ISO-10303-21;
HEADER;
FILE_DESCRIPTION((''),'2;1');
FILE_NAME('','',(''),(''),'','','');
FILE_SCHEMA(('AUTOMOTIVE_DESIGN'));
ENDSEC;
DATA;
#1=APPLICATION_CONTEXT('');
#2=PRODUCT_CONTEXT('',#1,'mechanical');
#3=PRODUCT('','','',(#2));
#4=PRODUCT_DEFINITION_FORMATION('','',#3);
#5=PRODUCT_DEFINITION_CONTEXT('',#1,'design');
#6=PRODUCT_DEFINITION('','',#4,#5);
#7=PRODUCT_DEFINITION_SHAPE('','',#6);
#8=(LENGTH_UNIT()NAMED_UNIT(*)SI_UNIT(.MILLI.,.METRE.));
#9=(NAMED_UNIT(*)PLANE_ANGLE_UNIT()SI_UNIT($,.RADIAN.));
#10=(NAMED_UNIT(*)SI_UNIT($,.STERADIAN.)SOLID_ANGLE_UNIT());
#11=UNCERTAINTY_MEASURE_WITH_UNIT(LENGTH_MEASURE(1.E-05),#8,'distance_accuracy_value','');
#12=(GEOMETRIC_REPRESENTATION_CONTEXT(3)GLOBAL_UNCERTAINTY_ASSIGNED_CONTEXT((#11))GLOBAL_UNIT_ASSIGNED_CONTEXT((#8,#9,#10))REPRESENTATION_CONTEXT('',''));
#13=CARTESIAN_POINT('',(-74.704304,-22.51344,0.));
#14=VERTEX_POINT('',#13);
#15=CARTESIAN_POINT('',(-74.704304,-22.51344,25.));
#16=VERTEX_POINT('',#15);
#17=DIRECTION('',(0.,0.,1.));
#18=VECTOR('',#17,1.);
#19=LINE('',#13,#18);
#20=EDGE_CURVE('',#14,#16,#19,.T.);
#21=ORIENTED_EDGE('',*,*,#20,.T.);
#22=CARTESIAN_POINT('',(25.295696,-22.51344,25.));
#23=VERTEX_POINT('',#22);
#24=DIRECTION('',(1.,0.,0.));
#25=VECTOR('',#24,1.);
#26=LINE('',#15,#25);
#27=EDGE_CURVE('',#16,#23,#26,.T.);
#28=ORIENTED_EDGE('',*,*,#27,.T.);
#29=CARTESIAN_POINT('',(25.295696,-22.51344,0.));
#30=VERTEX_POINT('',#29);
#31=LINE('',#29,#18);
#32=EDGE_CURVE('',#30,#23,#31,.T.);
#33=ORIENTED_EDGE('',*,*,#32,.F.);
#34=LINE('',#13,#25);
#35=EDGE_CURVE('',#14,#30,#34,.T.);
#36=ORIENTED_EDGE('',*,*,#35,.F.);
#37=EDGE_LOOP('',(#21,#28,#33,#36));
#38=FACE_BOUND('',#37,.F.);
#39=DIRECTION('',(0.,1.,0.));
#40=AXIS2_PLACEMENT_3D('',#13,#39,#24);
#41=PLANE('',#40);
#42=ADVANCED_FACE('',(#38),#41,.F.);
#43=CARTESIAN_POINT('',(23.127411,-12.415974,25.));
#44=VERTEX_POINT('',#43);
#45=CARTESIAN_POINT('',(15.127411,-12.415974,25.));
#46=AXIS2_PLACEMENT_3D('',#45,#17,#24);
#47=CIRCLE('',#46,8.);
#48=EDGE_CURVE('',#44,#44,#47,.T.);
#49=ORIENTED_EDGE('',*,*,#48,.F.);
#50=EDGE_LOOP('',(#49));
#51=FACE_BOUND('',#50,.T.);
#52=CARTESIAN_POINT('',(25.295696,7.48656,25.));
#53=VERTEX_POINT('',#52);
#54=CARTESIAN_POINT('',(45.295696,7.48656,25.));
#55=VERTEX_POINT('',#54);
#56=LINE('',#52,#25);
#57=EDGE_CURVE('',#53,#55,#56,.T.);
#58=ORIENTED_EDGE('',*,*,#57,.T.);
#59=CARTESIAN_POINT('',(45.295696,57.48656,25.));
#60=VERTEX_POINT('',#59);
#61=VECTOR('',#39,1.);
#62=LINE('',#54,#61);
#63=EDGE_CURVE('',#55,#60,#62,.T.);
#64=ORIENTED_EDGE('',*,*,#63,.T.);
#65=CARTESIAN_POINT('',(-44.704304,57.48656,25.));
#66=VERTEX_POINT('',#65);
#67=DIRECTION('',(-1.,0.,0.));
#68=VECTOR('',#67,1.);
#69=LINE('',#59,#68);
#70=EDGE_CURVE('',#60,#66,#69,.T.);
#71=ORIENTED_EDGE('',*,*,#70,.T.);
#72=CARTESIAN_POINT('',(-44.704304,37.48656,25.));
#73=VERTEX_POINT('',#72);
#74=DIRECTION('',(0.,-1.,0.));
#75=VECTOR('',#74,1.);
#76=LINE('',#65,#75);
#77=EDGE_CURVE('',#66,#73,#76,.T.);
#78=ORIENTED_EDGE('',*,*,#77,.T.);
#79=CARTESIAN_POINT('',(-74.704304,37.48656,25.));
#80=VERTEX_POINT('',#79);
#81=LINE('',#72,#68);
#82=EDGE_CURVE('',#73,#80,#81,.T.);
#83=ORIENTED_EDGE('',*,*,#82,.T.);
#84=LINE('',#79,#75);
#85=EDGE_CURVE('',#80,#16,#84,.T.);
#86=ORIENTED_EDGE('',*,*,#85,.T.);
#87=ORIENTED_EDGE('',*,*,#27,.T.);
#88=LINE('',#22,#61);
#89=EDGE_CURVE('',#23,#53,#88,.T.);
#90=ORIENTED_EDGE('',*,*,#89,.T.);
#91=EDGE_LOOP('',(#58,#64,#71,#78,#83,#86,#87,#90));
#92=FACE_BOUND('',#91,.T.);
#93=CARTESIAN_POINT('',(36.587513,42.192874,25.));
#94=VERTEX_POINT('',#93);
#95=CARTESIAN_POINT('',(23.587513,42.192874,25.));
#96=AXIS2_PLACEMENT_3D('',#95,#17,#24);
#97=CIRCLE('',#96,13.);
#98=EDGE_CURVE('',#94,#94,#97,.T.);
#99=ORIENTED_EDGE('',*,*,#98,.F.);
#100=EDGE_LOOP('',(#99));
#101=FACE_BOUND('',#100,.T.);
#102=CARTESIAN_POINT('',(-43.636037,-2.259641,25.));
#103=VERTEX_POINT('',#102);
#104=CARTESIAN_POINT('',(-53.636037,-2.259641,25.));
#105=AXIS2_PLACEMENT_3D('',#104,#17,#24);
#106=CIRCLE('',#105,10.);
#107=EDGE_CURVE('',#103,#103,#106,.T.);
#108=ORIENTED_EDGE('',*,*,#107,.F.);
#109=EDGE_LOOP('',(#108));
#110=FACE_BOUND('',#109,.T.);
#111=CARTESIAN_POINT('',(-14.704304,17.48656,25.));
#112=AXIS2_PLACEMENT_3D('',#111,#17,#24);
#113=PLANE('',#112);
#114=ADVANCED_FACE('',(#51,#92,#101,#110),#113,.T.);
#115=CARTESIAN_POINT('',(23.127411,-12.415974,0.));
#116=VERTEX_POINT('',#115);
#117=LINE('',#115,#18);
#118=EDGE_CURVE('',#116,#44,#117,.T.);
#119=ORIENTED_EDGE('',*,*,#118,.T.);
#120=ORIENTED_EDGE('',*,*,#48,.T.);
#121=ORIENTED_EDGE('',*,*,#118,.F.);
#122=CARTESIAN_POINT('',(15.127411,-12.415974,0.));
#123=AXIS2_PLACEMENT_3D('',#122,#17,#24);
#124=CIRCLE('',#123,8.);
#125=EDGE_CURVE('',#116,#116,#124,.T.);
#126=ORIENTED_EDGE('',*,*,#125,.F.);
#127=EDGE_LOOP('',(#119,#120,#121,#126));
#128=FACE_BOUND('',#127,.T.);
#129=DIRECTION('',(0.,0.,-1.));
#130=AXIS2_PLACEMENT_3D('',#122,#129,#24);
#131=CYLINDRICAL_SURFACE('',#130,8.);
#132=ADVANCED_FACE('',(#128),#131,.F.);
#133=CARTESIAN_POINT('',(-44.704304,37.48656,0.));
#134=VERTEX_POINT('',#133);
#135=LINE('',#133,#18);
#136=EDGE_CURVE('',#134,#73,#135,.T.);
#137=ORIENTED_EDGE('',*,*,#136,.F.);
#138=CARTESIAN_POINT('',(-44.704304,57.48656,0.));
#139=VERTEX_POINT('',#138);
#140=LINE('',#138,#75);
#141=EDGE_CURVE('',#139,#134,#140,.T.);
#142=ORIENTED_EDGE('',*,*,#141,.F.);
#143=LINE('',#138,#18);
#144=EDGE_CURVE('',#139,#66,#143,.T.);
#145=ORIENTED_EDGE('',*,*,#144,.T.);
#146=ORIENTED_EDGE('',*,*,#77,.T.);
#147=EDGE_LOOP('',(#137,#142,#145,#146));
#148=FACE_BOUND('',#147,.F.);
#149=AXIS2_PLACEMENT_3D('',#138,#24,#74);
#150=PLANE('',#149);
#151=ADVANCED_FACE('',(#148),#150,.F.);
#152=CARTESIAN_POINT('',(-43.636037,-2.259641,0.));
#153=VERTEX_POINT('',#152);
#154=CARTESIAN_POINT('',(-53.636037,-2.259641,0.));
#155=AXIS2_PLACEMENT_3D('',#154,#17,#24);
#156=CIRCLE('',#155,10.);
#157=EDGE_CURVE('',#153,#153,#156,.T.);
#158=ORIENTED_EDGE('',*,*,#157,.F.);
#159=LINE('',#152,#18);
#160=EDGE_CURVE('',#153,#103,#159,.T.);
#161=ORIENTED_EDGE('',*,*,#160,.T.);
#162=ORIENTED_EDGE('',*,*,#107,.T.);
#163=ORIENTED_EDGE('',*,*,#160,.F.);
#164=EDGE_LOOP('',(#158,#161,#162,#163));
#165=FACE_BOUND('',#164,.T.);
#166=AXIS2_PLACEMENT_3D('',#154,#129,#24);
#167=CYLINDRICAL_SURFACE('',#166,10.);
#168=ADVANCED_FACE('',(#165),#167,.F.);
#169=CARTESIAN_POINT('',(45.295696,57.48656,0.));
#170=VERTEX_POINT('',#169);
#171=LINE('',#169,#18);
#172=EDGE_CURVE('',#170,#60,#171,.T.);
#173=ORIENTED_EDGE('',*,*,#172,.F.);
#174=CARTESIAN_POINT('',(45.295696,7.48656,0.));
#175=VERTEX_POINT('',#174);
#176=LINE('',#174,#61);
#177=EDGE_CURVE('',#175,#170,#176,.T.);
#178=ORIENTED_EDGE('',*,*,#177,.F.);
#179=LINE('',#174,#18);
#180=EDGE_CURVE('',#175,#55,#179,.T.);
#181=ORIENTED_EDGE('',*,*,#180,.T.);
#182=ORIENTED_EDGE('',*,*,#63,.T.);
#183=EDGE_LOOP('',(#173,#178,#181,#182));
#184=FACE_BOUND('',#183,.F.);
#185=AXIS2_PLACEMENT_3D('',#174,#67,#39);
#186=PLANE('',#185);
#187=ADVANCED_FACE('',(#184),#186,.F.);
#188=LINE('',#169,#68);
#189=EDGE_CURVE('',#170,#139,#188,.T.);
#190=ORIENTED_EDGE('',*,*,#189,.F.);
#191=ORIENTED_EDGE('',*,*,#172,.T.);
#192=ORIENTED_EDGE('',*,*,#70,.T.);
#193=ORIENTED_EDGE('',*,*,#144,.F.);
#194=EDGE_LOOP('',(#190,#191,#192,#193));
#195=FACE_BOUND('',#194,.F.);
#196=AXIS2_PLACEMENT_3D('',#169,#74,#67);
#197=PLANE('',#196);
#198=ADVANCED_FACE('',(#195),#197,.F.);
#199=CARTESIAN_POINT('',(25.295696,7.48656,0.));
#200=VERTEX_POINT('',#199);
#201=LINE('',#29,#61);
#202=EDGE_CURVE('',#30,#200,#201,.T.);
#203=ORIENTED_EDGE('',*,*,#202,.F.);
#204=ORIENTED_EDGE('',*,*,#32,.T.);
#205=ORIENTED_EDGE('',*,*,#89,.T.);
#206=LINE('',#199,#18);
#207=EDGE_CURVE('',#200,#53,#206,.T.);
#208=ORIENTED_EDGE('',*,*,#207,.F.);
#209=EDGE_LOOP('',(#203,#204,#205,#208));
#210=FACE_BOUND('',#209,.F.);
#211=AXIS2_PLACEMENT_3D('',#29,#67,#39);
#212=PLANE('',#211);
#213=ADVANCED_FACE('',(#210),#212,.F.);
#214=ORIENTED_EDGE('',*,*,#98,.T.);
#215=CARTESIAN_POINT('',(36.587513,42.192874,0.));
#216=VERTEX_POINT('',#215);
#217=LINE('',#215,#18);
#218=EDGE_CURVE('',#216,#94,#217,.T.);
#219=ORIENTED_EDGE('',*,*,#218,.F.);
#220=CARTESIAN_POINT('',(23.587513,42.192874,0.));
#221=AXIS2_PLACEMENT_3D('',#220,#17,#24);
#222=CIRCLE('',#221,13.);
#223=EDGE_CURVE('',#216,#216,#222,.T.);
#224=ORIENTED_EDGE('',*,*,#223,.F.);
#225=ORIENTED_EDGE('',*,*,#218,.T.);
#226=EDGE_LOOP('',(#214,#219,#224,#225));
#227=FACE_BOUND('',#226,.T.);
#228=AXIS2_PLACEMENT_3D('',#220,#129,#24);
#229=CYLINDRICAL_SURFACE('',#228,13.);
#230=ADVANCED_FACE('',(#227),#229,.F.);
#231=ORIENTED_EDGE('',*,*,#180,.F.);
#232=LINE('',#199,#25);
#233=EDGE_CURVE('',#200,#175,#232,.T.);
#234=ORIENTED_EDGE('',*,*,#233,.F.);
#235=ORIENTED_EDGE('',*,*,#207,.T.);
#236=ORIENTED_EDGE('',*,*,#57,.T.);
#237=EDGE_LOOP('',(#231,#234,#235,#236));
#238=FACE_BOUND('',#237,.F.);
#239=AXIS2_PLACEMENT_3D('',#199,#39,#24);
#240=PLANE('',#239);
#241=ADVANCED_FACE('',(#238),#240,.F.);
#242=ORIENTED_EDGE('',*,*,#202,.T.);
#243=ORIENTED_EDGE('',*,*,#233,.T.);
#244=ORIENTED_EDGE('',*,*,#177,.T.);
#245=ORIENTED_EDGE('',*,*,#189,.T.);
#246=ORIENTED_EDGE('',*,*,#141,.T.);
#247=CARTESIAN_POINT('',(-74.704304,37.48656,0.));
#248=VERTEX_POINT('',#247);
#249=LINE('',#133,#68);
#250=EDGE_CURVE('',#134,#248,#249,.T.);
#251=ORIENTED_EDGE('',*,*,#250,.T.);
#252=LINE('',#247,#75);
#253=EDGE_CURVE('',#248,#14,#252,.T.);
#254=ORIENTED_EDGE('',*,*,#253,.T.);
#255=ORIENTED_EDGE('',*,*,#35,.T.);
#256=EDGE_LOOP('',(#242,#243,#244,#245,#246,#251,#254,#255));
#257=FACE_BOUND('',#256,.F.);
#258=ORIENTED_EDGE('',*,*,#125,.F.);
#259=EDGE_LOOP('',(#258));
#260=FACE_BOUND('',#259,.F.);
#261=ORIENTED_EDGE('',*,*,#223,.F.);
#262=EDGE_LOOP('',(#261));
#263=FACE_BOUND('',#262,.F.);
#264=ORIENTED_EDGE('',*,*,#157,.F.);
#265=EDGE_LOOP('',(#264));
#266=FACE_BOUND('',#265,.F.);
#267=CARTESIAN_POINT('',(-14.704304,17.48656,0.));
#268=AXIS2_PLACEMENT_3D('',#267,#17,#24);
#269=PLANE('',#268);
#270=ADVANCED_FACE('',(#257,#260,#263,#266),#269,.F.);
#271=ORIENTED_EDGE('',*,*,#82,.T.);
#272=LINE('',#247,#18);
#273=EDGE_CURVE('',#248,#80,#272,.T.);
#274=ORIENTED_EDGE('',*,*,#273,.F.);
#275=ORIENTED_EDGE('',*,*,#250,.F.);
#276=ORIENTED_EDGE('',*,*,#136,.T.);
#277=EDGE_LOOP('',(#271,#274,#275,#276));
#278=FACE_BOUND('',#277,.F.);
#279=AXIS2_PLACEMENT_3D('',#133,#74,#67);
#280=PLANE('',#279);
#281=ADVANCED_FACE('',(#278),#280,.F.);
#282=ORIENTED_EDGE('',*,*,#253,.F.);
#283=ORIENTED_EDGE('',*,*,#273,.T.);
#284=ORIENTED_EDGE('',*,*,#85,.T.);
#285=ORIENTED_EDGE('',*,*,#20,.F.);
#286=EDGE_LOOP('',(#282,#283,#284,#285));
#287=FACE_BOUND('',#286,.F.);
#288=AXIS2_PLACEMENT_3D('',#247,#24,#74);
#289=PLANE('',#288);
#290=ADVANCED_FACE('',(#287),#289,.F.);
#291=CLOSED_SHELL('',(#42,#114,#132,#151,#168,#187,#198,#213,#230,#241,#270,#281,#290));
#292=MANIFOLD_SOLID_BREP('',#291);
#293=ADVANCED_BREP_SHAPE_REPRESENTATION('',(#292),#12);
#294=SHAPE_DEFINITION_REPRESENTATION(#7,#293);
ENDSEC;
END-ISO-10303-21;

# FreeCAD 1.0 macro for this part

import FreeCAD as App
import Part
import Sketcher

V = App.Vector
Q = App.Units.Quantity

doc = App.newDocument("Part")
body = doc.addObject("PartDesign::Body", "Body")

sketch1 = body.newObject("Sketcher::SketchObject", "Sketch")
sketch1.AttachmentSupport = (doc.getObject("XY_Plane"), [""])
sketch1.MapMode = "FlatFace"
sketch1.addGeometry([
    Part.LineSegment(V(45, 57, 0), V(-45, 57, 0)),
    Part.LineSegment(V(-45, 57, 0), V(-45, 37, 0)),
    Part.LineSegment(V(-45, 37, 0), V(-75, 37, 0)),
    Part.LineSegment(V(-75, 37, 0), V(-75, -23, 0)),
    Part.LineSegment(V(-75, -23, 0), V(25, -23, 0)),
    Part.LineSegment(V(25, -23, 0), V(25, 7, 0)),
    Part.LineSegment(V(25, 7, 0), V(45, 7, 0)),
    Part.LineSegment(V(45, 7, 0), V(45, 57, 0)),
    Part.Circle(V(-54, -2, 0), V(0, 0, 1), 10),
    Part.Circle(V(15, -12, 0), V(0, 0, 1), 8),
    Part.Circle(V(24, 42, 0), V(0, 0, 1), 13),
], False)
sketch1.addConstraint([
    Sketcher.Constraint("Coincident", 0, 2, 1, 1),
    Sketcher.Constraint("Coincident", 1, 2, 2, 1),
    Sketcher.Constraint("Coincident", 2, 2, 3, 1),
    Sketcher.Constraint("Coincident", 3, 2, 4, 1),
    Sketcher.Constraint("Coincident", 4, 2, 5, 1),
    Sketcher.Constraint("Coincident", 5, 2, 6, 1),
    Sketcher.Constraint("Coincident", 6, 2, 7, 1),
    Sketcher.Constraint("Coincident", 7, 2, 0, 1),
    Sketcher.Constraint("Horizontal", 0),
    Sketcher.Constraint("Vertical", 1),
    Sketcher.Constraint("Horizontal", 2),
    Sketcher.Constraint("Vertical", 3),
    Sketcher.Constraint("Horizontal", 4),
    Sketcher.Constraint("Vertical", 5),
    Sketcher.Constraint("Horizontal", 6),
    Sketcher.Constraint("Vertical", 7),
    Sketcher.Constraint("Equal", 6, 1),
    Sketcher.Constraint("Equal", 2, 5),
    Sketcher.Constraint("Diameter", 8, Q("20 mm")),
    Sketcher.Constraint("Diameter", 9, Q("16 mm")),
    Sketcher.Constraint("Diameter", 10, Q("26 mm")),
    Sketcher.Constraint("DistanceX", 0, 2, 0, 1, Q("90 mm")),
    Sketcher.Constraint("DistanceX", 2, 2, 2, 1, Q("30 mm")),
    Sketcher.Constraint("DistanceX", 4, 1, 4, 2, Q("100 mm")),
    Sketcher.Constraint("DistanceY", 3, 2, 3, 1, Q("60 mm")),
    Sketcher.Constraint("DistanceY", 8, 3, 0, 2, Q("59.746201 mm")),
    Sketcher.Constraint("DistanceY", 8, 3, -1, 1, Q("2.259641 mm")),
    Sketcher.Constraint("DistanceX", -1, 1, 9, 3, Q("15.127411 mm")),
    Sketcher.Constraint("DistanceY", 9, 3, 10, 3, Q("54.608848 mm")),
    Sketcher.Constraint("DistanceX", 8, 3, 10, 3, Q("77.22355 mm")),
    Sketcher.Constraint("DistanceX", 8, 3, -1, 1, Q("53.636037 mm")),
    Sketcher.Constraint("DistanceY", 9, 3, -1, 1, Q("12.415974 mm")),
    Sketcher.Constraint("DistanceX", 0, 2, -1, 1, Q("44.704304 mm")),
])
pad1 = body.newObject("PartDesign::Pad", "Pad")
pad1.Profile = sketch1
pad1.Length = 25

doc.recompute()
